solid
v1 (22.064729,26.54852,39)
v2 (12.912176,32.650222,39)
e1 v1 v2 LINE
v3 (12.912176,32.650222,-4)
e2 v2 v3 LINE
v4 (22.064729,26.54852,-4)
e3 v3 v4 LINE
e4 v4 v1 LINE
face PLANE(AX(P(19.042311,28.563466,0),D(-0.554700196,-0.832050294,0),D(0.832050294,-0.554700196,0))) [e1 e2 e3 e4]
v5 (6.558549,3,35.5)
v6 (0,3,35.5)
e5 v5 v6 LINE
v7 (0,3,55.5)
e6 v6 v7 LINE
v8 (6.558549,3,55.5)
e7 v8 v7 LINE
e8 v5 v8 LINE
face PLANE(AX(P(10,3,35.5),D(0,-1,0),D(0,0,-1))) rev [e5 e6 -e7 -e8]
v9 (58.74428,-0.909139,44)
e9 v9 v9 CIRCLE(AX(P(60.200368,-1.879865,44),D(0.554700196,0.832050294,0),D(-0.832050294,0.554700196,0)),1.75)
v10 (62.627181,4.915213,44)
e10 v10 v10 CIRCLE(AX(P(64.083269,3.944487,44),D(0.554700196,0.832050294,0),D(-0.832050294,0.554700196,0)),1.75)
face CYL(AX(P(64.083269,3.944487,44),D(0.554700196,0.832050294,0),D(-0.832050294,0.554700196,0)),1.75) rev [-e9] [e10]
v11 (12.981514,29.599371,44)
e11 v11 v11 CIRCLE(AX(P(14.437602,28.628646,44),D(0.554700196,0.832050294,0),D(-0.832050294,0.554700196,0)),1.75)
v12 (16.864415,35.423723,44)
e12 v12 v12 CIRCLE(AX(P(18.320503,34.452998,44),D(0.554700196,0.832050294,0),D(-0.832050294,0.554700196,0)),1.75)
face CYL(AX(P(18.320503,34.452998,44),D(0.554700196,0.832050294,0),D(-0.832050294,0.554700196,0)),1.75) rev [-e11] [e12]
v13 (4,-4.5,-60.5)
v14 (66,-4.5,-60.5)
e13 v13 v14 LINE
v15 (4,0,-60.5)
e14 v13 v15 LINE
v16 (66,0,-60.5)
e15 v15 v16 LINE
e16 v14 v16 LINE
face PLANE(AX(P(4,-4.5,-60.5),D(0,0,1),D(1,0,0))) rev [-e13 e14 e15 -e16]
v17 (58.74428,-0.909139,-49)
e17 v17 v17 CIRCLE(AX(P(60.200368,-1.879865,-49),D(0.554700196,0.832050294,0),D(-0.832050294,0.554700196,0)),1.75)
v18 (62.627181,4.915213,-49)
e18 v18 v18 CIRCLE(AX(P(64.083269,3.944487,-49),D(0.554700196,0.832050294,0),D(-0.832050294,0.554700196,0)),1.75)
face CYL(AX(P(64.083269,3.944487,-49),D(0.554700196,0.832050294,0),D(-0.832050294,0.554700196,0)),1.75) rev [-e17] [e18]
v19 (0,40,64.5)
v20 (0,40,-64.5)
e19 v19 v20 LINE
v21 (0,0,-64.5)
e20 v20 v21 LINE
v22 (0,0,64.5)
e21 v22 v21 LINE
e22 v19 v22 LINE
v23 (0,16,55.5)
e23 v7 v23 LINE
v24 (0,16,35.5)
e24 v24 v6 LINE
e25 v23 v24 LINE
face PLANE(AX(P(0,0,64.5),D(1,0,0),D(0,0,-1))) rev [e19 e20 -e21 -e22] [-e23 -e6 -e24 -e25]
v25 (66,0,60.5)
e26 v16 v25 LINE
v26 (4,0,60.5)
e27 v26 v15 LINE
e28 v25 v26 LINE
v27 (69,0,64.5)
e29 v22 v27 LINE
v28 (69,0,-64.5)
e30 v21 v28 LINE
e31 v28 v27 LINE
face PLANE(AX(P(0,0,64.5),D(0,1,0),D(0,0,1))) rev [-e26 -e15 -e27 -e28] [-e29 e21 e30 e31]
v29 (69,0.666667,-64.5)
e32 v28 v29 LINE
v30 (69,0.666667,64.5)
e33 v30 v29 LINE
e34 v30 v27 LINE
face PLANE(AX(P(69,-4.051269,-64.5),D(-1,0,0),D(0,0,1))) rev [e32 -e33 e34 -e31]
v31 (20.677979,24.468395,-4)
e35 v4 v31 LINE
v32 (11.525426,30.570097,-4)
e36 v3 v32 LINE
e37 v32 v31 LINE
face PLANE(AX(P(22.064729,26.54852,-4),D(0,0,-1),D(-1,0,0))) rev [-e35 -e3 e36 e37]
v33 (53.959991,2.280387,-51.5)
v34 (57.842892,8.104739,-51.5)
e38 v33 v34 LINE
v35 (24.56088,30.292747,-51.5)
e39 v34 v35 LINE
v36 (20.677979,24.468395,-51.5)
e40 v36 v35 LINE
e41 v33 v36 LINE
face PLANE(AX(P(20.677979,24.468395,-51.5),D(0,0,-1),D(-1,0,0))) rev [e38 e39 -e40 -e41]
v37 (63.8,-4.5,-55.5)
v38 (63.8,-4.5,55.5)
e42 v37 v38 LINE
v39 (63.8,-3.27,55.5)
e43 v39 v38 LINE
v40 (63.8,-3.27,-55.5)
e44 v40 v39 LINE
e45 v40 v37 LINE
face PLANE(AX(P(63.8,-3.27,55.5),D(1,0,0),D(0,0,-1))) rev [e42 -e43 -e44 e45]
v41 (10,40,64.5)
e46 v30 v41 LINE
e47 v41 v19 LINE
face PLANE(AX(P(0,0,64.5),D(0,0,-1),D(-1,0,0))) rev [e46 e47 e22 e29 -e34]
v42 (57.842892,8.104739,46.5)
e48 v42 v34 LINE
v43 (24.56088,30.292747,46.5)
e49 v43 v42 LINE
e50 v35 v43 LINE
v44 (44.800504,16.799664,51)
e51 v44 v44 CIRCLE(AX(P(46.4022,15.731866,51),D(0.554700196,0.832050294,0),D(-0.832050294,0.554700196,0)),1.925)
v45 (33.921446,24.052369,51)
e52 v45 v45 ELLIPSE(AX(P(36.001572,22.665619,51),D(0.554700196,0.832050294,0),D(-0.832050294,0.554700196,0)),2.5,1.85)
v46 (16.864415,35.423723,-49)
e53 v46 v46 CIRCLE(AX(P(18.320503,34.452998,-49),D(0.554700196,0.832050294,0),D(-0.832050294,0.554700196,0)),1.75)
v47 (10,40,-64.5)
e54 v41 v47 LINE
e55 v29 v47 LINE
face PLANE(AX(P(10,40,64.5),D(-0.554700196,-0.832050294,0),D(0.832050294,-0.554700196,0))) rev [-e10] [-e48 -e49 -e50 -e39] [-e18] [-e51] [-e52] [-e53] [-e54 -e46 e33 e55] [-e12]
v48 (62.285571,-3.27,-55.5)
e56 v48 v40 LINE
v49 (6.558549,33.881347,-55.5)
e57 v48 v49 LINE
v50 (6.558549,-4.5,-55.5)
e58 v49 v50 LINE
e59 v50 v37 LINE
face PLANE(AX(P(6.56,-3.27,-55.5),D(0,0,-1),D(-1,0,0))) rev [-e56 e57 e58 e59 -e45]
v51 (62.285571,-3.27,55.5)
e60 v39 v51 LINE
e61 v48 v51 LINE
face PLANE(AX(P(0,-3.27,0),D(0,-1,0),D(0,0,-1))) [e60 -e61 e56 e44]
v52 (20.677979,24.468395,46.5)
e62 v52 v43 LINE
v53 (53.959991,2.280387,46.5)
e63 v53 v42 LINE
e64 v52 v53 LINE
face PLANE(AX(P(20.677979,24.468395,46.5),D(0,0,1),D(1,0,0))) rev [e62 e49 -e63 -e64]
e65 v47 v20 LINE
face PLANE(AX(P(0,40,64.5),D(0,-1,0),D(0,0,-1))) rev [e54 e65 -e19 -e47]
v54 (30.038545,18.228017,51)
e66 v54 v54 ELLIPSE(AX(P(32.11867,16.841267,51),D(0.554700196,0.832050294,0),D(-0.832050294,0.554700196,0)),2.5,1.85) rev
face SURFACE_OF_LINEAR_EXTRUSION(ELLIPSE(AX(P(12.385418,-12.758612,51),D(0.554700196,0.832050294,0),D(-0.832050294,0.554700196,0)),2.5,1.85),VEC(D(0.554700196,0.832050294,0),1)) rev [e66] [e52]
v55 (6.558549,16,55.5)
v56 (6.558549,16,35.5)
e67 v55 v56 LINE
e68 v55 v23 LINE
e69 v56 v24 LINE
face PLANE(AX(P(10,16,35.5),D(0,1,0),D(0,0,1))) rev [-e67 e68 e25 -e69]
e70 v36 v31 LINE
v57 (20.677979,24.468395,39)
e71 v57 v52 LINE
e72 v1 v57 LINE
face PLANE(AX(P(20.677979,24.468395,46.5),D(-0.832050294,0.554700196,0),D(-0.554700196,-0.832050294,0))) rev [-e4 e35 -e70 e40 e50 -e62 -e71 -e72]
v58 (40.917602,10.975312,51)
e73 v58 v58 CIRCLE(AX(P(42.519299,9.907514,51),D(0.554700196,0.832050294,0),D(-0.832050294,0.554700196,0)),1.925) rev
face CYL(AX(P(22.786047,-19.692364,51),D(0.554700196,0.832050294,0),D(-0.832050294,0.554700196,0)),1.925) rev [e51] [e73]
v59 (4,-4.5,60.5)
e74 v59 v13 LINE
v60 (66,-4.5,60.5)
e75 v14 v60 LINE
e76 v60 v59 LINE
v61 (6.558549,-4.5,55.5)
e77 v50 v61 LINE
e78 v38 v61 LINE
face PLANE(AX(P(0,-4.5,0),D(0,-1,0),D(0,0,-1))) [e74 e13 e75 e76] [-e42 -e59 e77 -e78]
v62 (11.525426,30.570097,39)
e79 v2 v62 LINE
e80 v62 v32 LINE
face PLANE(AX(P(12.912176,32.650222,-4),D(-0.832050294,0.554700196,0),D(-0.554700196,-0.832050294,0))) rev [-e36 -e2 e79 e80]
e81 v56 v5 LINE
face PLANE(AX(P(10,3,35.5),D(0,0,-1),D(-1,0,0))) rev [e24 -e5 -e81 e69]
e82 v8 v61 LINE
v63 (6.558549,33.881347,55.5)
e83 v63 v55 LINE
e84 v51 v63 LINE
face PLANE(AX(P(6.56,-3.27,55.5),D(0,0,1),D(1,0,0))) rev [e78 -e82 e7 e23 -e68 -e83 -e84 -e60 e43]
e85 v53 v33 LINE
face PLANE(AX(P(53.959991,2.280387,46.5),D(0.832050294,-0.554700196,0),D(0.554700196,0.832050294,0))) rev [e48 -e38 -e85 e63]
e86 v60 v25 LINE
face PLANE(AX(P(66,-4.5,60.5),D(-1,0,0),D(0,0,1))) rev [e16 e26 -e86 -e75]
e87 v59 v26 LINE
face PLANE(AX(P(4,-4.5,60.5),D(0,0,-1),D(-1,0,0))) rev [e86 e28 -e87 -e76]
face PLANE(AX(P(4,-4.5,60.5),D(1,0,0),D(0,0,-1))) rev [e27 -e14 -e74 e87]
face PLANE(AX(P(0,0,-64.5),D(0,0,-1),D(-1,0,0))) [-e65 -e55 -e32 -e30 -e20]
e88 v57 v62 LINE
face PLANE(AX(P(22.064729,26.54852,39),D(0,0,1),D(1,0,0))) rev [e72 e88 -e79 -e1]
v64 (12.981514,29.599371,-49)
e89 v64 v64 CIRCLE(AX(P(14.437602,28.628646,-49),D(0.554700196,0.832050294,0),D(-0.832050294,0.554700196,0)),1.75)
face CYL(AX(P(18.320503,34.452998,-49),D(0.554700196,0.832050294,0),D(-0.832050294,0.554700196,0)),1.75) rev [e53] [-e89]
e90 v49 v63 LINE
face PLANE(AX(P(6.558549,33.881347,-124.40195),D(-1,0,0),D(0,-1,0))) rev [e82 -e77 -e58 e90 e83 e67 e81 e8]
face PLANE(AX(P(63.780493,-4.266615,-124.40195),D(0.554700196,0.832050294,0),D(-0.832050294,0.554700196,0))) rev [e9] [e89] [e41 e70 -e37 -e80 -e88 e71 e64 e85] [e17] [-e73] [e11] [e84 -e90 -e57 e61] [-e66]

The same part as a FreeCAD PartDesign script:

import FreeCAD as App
import Part
import Sketcher

doc = App.newDocument("Part")
body = doc.addObject("PartDesign::Body", "Body")

# Sketch on XY plane
sketch1 = body.newObject("Sketcher::SketchObject", "Sketch")
sketch1.AttachmentSupport = (doc.getObject("XY_Plane"), [""])
sketch1.MapMode = "FlatFace"
sketch1.addGeometry([
    Part.LineSegment(App.Vector(0, 0, 0), App.Vector(70, 0, 0)),
    Part.LineSegment(App.Vector(70, 0, 0), App.Vector(10, 40, 0)),
    Part.LineSegment(App.Vector(10, 40, 0), App.Vector(0, 40, 0)),
    Part.LineSegment(App.Vector(0, 40, 0), App.Vector(0, 0, 0)),
], False)
sketch1.addConstraint([
    Sketcher.Constraint("Coincident", 0, 2, 1, 1),
    Sketcher.Constraint("Coincident", 1, 2, 2, 1),
    Sketcher.Constraint("Coincident", 2, 2, 3, 1),
    Sketcher.Constraint("Coincident", 3, 2, 0, 1),
    Sketcher.Constraint("Horizontal", 0),
    Sketcher.Constraint("Horizontal", 2),
    Sketcher.Constraint("Vertical", 3),
    Sketcher.Constraint("Coincident", 3, 2, -1, 1),
    Sketcher.Constraint("DistanceX", 0, 1, 0, 2, 70.0),
    Sketcher.Constraint("DistanceX", 2, 2, 2, 1, 10.0),
    Sketcher.Constraint("DistanceY", 3, 2, 3, 1, 40.0),
])
pad1 = body.newObject("PartDesign::Pad", "Pad")
pad1.Profile = sketch1
pad1.Length = 129
pad1.Midplane = True

# Sketch on XZ plane
sketch2 = body.newObject("Sketcher::SketchObject", "Sketch001")
sketch2.AttachmentSupport = (doc.getObject("XZ_Plane"), [""])
sketch2.MapMode = "FlatFace"
sketch2.addGeometry([
    Part.LineSegment(App.Vector(4, 60, 0), App.Vector(4, -60, 0)),
    Part.LineSegment(App.Vector(4, -60, 0), App.Vector(66, -60, 0)),
    Part.LineSegment(App.Vector(66, -60, 0), App.Vector(66, 60, 0)),
    Part.LineSegment(App.Vector(66, 60, 0), App.Vector(4, 60, 0)),
], False)
sketch2.addConstraint([
    Sketcher.Constraint("Coincident", 0, 2, 1, 1),
    Sketcher.Constraint("Coincident", 1, 2, 2, 1),
    Sketcher.Constraint("Coincident", 2, 2, 3, 1),
    Sketcher.Constraint("Coincident", 3, 2, 0, 1),
    Sketcher.Constraint("Vertical", 0),
    Sketcher.Constraint("Horizontal", 1),
    Sketcher.Constraint("Vertical", 2),
    Sketcher.Constraint("Horizontal", 3),
    Sketcher.Constraint("DistanceX", 1, 1, 1, 2, 62.0),
    Sketcher.Constraint("DistanceY", 0, 2, 0, 1, 121.0),
    Sketcher.Constraint("DistanceX", -1, 1, 0, 2, 4.0),
    Sketcher.Constraint("DistanceY", 0, 2, -1, 1, 60.5),
])
pad2 = body.newObject("PartDesign::Pad", "Pad001")
pad2.Profile = sketch2
pad2.Length = 4.5

# Sketch on an angled plane
sketch3 = body.newObject("Sketcher::SketchObject", "Sketch002")
sketch3.Placement = App.Placement(App.Vector(21.538462, 32.307692, 0), App.Rotation(App.Vector(0.832050294, -0.554700196, 0), App.Vector(0, 0, -0.999999999), App.Vector(0.554700196, 0.832050294, 0), "ZXY"))
sketch3.addGeometry([
    Part.LineSegment(App.Vector(4, 51, 0), App.Vector(4, -46, 0)),
    Part.LineSegment(App.Vector(4, -46, 0), App.Vector(44, -46, 0)),
    Part.LineSegment(App.Vector(44, -46, 0), App.Vector(44, 51, 0)),
    Part.LineSegment(App.Vector(44, 51, 0), App.Vector(4, 51, 0)),
], False)
sketch3.addConstraint([
    Sketcher.Constraint("Coincident", 0, 2, 1, 1),
    Sketcher.Constraint("Coincident", 1, 2, 2, 1),
    Sketcher.Constraint("Coincident", 2, 2, 3, 1),
    Sketcher.Constraint("Coincident", 3, 2, 0, 1),
    Sketcher.Constraint("Vertical", 0),
    Sketcher.Constraint("Horizontal", 1),
    Sketcher.Constraint("Vertical", 2),
    Sketcher.Constraint("Horizontal", 3),
    Sketcher.Constraint("DistanceX", 1, 1, 1, 2, 40.0),
    Sketcher.Constraint("DistanceY", 0, 2, 0, 1, 98.0),
    Sketcher.Constraint("DistanceY", 0, 2, -1, 1, 46.5),
    Sketcher.Constraint("DistanceX", -1, 1, 0, 2, 3.632495),
])
pocket1 = body.newObject("PartDesign::Pocket", "Pocket")
pocket1.Profile = sketch3
pocket1.Length = 7

# Sketch on XZ plane
sketch4 = body.newObject("Sketcher::SketchObject", "Sketch003")
sketch4.AttachmentSupport = (doc.getObject("XZ_Plane"), [""])
sketch4.MapMode = "FlatFace"
sketch4.AttachmentOffset = App.Placement(App.Vector(0, 0, 4.5), App.Rotation())
sketch4.addGeometry([
    Part.LineSegment(App.Vector(7, 56, 0), App.Vector(7, -56, 0)),
    Part.LineSegment(App.Vector(7, -56, 0), App.Vector(64, -56, 0)),
    Part.LineSegment(App.Vector(64, -56, 0), App.Vector(64, 56, 0)),
    Part.LineSegment(App.Vector(64, 56, 0), App.Vector(7, 56, 0)),
], False)
sketch4.addConstraint([
    Sketcher.Constraint("Coincident", 0, 2, 1, 1),
    Sketcher.Constraint("Coincident", 1, 2, 2, 1),
    Sketcher.Constraint("Coincident", 2, 2, 3, 1),
    Sketcher.Constraint("Coincident", 3, 2, 0, 1),
    Sketcher.Constraint("Vertical", 0),
    Sketcher.Constraint("Horizontal", 1),
    Sketcher.Constraint("Vertical", 2),
    Sketcher.Constraint("Horizontal", 3),
    Sketcher.Constraint("DistanceY", 0, 2, 0, 1, 111.0),
    Sketcher.Constraint("DistanceX", 1, 1, 1, 2, 57.24),
    Sketcher.Constraint("DistanceY", 0, 2, -1, 1, 55.5),
    Sketcher.Constraint("DistanceX", -1, 1, 1, 2, 63.8),
])
pocket2 = body.newObject("PartDesign::Pocket", "Pocket001")
pocket2.Profile = sketch4
pocket2.Length = 1.23

# Sketch on XY plane
sketch5 = body.newObject("Sketcher::SketchObject", "Sketch004")
sketch5.AttachmentSupport = (doc.getObject("XY_Plane"), [""])
sketch5.MapMode = "FlatFace"
sketch5.AttachmentOffset = App.Placement(App.Vector(0, 0, 55.5), App.Rotation())
sketch5.addGeometry([
    Part.LineSegment(App.Vector(63.78, -4.27, 0), App.Vector(6.56, 33.88, 0)),
    Part.LineSegment(App.Vector(6.56, 33.88, 0), App.Vector(6.56, -4.5, 0)),
    Part.LineSegment(App.Vector(6.56, -4.5, 0), App.Vector(63.78, -4.5, 0)),
    Part.LineSegment(App.Vector(63.78, -4.5, 0), App.Vector(63.78, -4.27, 0)),
], False)
sketch5.addConstraint([
    Sketcher.Constraint("Coincident", 0, 2, 1, 1),
    Sketcher.Constraint("Coincident", 1, 2, 2, 1),
    Sketcher.Constraint("Coincident", 2, 2, 3, 1),
    Sketcher.Constraint("Coincident", 3, 2, 0, 1),
    Sketcher.Constraint("Vertical", 1),
    Sketcher.Constraint("Horizontal", 2),
    Sketcher.Constraint("Vertical", 3),
    Sketcher.Constraint("DistanceY", 1, 2, -1, 1, 4.5),
    Sketcher.Constraint("DistanceX", 2, 1, 2, 2, 57.221944),
    Sketcher.Constraint("DistanceY", 1, 2, 1, 1, 38.381347),
    Sketcher.Constraint("DistanceY", 3, 1, 3, 2, 0.233385),
    Sketcher.Constraint("DistanceX", -1, 1, 0, 2, 6.558549),
])
pocket3 = body.newObject("PartDesign::Pocket", "Pocket002")
pocket3.Profile = sketch5
pocket3.Length = 111

# Sketch on an angled plane
sketch6 = body.newObject("Sketcher::SketchObject", "Sketch005")
sketch6.Placement = App.Placement(App.Vector(21.538462, 32.307692, 0), App.Rotation(App.Vector(0.832050294, -0.554700196, 0), App.Vector(0, 0, -0.999999999), App.Vector(0.554700196, 0.832050294, 0), "ZXY"))
sketch6.addGeometry(Part.Circle(App.Vector(29.9, -51, 0), App.Vector(0, 0, 1), 1.9), False)
sketch6.addConstraint([
    Sketcher.Constraint("Diameter", 0, 3.85),
    Sketcher.Constraint("DistanceY", 0, 3, -1, 1, 51.0),
    Sketcher.Constraint("DistanceX", -1, 1, 0, 3, 29.882495),
])
pocket4 = body.newObject("PartDesign::Pocket", "Pocket003")
pocket4.Profile = sketch6
pocket4.Type = "UpToFirst"

# Sketch on an angled plane
sketch7 = body.newObject("Sketcher::SketchObject", "Sketch006")
sketch7.Placement = App.Placement(App.Vector(21.538462, 32.307692, 0), App.Rotation(App.Vector(0.832050294, -0.554700196, 0), App.Vector(0, 0, -0.999999999), App.Vector(0.554700196, 0.832050294, 0), "ZXY"))
sketch7.addGeometry(Part.Ellipse(App.Vector(19.882495, -51, 0), App.Vector(17.382495, -49.15, 0), App.Vector(17.382495, -51, 0)), False)
sketch7.addConstraint(Sketcher.Constraint("Block", 0))
pocket5 = body.newObject("PartDesign::Pocket", "Pocket004")
pocket5.Profile = sketch7
pocket5.Type = "UpToFirst"

# Sketch on an angled plane
sketch8 = body.newObject("Sketcher::SketchObject", "Sketch007")
sketch8.Placement = App.Placement(App.Vector(21.538462, 32.307692, 0), App.Rotation(App.Vector(0.832050294, -0.554700196, 0), App.Vector(0, 0, -0.999999999), App.Vector(0.554700196, 0.832050294, 0), "ZXY"))
sketch8.addGeometry([
    Part.Circle(App.Vector(-3.9, -44, 0), App.Vector(0, 0, 1), 1.8),
    Part.Circle(App.Vector(-3.9, 49, 0), App.Vector(0, 0, 1), 1.8),
    Part.Circle(App.Vector(51.1, 49, 0), App.Vector(0, 0, 1), 1.8),
    Part.Circle(App.Vector(51.1, -44, 0), App.Vector(0, 0, 1), 1.8),
], False)
sketch8.addConstraint([
    Sketcher.Constraint("Equal", 0, 1),
    Sketcher.Constraint("Equal", 1, 2),
    Sketcher.Constraint("Equal", 2, 3),
    Sketcher.Constraint("Horizontal", 1, 3, 2, 3),
    Sketcher.Constraint("Horizontal", 0, 3, 3, 3),
    Sketcher.Constraint("Vertical", 0, 3, 1, 3),
    Sketcher.Constraint("Vertical", 2, 3, 3, 3),
    Sketcher.Constraint("Diameter", 0, 3.5),
    Sketcher.Constraint("DistanceY", 0, 3, -1, 1, 44.0),
    Sketcher.Constraint("DistanceY", -1, 1, 1, 3, 49.0),
    Sketcher.Constraint("DistanceX", 1, 3, 2, 3, 55.0),
    Sketcher.Constraint("DistanceX", 0, 3, -1, 1, 3.867505),
])
doc.recompute()
hole = body.newObject("PartDesign::Hole", "Hole")
hole.Profile = sketch8
hole.ThreadType = "None"
hole.Diameter = 3.5
hole.DepthType = "Dimension"
hole.Depth = 7
hole.DrillPoint = "Flat"

# Sketch on YZ plane
sketch9 = body.newObject("Sketcher::SketchObject", "Sketch008")
sketch9.AttachmentSupport = (doc.getObject("YZ_Plane"), [""])
sketch9.MapMode = "FlatFace"
sketch9.addGeometry([
    Part.LineSegment(App.Vector(16, 36, 0), App.Vector(3, 36, 0)),
    Part.LineSegment(App.Vector(3, 36, 0), App.Vector(3, 56, 0)),
    Part.LineSegment(App.Vector(3, 56, 0), App.Vector(16, 56, 0)),
    Part.LineSegment(App.Vector(16, 56, 0), App.Vector(16, 36, 0)),
], False)
sketch9.addConstraint([
    Sketcher.Constraint("Coincident", 0, 2, 1, 1),
    Sketcher.Constraint("Coincident", 1, 2, 2, 1),
    Sketcher.Constraint("Coincident", 2, 2, 3, 1),
    Sketcher.Constraint("Coincident", 3, 2, 0, 1),
    Sketcher.Constraint("Horizontal", 0),
    Sketcher.Constraint("Vertical", 1),
    Sketcher.Constraint("Horizontal", 2),
    Sketcher.Constraint("Vertical", 3),
    Sketcher.Constraint("DistanceX", 0, 2, 0, 1, 13.0),
    Sketcher.Constraint("DistanceY", 1, 1, 1, 2, 20.0),
    Sketcher.Constraint("DistanceX", -1, 1, 0, 2, 3.0),
    Sketcher.Constraint("DistanceY", -1, 1, 0, 2, 35.5),
])
pocket6 = body.newObject("PartDesign::Pocket", "Pocket005")
pocket6.Profile = sketch9
pocket6.Length = 10
pocket6.Reversed = True

# Sketch on an angled plane
sketch10 = body.newObject("Sketcher::SketchObject", "Sketch009")
sketch10.Placement = App.Placement(App.Vector(17.65556, 26.48334, 0), App.Rotation(App.Vector(0.832050294, -0.554700196, 0), App.Vector(0, 0, 0.999999999), App.Vector(-0.554700196, -0.832050294, 0), "ZXY"))
sketch10.addGeometry([
    Part.LineSegment(App.Vector(-7, 39, 0), App.Vector(-7, -4, 0)),
    Part.LineSegment(App.Vector(-7, -4, 0), App.Vector(4, -4, 0)),
    Part.LineSegment(App.Vector(4, -4, 0), App.Vector(4, 39, 0)),
    Part.LineSegment(App.Vector(4, 39, 0), App.Vector(-7, 39, 0)),
], False)
sketch10.addConstraint([
    Sketcher.Constraint("Coincident", 0, 2, 1, 1),
    Sketcher.Constraint("Coincident", 1, 2, 2, 1),
    Sketcher.Constraint("Coincident", 2, 2, 3, 1),
    Sketcher.Constraint("Coincident", 3, 2, 0, 1),
    Sketcher.Constraint("Vertical", 0),
    Sketcher.Constraint("Horizontal", 1),
    Sketcher.Constraint("Vertical", 2),
    Sketcher.Constraint("Horizontal", 3),
    Sketcher.Constraint("DistanceX", 1, 1, 1, 2, 11.0),
    Sketcher.Constraint("DistanceY", 0, 2, 0, 1, 43.0),
    Sketcher.Constraint("DistanceY", 0, 2, -1, 1, 4.0),
    Sketcher.Constraint("DistanceX", 0, 2, -1, 1, 7.367505),
])
pocket7 = body.newObject("PartDesign::Pocket", "Pocket006")
pocket7.Profile = sketch10
pocket7.Length = 2.5

# Sketch on XY plane
sketch11 = body.newObject("Sketcher::SketchObject", "Sketch010")
sketch11.AttachmentSupport = (doc.getObject("XY_Plane"), [""])
sketch11.MapMode = "FlatFace"
sketch11.AttachmentOffset = App.Placement(App.Vector(0, 0, 64.5), App.Rotation())
sketch11.addGeometry([
    Part.LineSegment(App.Vector(69, 4.2, 0), App.Vector(69, -4.1, 0)),
    Part.LineSegment(App.Vector(69, -4.1, 0), App.Vector(71, -4.1, 0)),
    Part.LineSegment(App.Vector(71, -4.1, 0), App.Vector(71, 4.2, 0)),
    Part.LineSegment(App.Vector(71, 4.2, 0), App.Vector(69, 4.2, 0)),
], False)
sketch11.addConstraint([
    Sketcher.Constraint("Coincident", 0, 2, 1, 1),
    Sketcher.Constraint("Coincident", 1, 2, 2, 1),
    Sketcher.Constraint("Coincident", 2, 2, 3, 1),
    Sketcher.Constraint("Coincident", 3, 2, 0, 1),
    Sketcher.Constraint("Vertical", 0),
    Sketcher.Constraint("Horizontal", 1),
    Sketcher.Constraint("Vertical", 2),
    Sketcher.Constraint("Horizontal", 3),
    Sketcher.Constraint("DistanceX", 1, 1, 1, 2, 2.0),
    Sketcher.Constraint("DistanceX", -1, 1, 0, 2, 69.0),
    Sketcher.Constraint("DistanceY", 0, 2, 0, 1, 8.260778),
    Sketcher.Constraint("DistanceY", 0, 2, -1, 1, 4.051269),
])
pocket8 = body.newObject("PartDesign::Pocket", "Pocket007")
pocket8.Profile = sketch11
pocket8.Type = "ThroughAll"

doc.recompute()
